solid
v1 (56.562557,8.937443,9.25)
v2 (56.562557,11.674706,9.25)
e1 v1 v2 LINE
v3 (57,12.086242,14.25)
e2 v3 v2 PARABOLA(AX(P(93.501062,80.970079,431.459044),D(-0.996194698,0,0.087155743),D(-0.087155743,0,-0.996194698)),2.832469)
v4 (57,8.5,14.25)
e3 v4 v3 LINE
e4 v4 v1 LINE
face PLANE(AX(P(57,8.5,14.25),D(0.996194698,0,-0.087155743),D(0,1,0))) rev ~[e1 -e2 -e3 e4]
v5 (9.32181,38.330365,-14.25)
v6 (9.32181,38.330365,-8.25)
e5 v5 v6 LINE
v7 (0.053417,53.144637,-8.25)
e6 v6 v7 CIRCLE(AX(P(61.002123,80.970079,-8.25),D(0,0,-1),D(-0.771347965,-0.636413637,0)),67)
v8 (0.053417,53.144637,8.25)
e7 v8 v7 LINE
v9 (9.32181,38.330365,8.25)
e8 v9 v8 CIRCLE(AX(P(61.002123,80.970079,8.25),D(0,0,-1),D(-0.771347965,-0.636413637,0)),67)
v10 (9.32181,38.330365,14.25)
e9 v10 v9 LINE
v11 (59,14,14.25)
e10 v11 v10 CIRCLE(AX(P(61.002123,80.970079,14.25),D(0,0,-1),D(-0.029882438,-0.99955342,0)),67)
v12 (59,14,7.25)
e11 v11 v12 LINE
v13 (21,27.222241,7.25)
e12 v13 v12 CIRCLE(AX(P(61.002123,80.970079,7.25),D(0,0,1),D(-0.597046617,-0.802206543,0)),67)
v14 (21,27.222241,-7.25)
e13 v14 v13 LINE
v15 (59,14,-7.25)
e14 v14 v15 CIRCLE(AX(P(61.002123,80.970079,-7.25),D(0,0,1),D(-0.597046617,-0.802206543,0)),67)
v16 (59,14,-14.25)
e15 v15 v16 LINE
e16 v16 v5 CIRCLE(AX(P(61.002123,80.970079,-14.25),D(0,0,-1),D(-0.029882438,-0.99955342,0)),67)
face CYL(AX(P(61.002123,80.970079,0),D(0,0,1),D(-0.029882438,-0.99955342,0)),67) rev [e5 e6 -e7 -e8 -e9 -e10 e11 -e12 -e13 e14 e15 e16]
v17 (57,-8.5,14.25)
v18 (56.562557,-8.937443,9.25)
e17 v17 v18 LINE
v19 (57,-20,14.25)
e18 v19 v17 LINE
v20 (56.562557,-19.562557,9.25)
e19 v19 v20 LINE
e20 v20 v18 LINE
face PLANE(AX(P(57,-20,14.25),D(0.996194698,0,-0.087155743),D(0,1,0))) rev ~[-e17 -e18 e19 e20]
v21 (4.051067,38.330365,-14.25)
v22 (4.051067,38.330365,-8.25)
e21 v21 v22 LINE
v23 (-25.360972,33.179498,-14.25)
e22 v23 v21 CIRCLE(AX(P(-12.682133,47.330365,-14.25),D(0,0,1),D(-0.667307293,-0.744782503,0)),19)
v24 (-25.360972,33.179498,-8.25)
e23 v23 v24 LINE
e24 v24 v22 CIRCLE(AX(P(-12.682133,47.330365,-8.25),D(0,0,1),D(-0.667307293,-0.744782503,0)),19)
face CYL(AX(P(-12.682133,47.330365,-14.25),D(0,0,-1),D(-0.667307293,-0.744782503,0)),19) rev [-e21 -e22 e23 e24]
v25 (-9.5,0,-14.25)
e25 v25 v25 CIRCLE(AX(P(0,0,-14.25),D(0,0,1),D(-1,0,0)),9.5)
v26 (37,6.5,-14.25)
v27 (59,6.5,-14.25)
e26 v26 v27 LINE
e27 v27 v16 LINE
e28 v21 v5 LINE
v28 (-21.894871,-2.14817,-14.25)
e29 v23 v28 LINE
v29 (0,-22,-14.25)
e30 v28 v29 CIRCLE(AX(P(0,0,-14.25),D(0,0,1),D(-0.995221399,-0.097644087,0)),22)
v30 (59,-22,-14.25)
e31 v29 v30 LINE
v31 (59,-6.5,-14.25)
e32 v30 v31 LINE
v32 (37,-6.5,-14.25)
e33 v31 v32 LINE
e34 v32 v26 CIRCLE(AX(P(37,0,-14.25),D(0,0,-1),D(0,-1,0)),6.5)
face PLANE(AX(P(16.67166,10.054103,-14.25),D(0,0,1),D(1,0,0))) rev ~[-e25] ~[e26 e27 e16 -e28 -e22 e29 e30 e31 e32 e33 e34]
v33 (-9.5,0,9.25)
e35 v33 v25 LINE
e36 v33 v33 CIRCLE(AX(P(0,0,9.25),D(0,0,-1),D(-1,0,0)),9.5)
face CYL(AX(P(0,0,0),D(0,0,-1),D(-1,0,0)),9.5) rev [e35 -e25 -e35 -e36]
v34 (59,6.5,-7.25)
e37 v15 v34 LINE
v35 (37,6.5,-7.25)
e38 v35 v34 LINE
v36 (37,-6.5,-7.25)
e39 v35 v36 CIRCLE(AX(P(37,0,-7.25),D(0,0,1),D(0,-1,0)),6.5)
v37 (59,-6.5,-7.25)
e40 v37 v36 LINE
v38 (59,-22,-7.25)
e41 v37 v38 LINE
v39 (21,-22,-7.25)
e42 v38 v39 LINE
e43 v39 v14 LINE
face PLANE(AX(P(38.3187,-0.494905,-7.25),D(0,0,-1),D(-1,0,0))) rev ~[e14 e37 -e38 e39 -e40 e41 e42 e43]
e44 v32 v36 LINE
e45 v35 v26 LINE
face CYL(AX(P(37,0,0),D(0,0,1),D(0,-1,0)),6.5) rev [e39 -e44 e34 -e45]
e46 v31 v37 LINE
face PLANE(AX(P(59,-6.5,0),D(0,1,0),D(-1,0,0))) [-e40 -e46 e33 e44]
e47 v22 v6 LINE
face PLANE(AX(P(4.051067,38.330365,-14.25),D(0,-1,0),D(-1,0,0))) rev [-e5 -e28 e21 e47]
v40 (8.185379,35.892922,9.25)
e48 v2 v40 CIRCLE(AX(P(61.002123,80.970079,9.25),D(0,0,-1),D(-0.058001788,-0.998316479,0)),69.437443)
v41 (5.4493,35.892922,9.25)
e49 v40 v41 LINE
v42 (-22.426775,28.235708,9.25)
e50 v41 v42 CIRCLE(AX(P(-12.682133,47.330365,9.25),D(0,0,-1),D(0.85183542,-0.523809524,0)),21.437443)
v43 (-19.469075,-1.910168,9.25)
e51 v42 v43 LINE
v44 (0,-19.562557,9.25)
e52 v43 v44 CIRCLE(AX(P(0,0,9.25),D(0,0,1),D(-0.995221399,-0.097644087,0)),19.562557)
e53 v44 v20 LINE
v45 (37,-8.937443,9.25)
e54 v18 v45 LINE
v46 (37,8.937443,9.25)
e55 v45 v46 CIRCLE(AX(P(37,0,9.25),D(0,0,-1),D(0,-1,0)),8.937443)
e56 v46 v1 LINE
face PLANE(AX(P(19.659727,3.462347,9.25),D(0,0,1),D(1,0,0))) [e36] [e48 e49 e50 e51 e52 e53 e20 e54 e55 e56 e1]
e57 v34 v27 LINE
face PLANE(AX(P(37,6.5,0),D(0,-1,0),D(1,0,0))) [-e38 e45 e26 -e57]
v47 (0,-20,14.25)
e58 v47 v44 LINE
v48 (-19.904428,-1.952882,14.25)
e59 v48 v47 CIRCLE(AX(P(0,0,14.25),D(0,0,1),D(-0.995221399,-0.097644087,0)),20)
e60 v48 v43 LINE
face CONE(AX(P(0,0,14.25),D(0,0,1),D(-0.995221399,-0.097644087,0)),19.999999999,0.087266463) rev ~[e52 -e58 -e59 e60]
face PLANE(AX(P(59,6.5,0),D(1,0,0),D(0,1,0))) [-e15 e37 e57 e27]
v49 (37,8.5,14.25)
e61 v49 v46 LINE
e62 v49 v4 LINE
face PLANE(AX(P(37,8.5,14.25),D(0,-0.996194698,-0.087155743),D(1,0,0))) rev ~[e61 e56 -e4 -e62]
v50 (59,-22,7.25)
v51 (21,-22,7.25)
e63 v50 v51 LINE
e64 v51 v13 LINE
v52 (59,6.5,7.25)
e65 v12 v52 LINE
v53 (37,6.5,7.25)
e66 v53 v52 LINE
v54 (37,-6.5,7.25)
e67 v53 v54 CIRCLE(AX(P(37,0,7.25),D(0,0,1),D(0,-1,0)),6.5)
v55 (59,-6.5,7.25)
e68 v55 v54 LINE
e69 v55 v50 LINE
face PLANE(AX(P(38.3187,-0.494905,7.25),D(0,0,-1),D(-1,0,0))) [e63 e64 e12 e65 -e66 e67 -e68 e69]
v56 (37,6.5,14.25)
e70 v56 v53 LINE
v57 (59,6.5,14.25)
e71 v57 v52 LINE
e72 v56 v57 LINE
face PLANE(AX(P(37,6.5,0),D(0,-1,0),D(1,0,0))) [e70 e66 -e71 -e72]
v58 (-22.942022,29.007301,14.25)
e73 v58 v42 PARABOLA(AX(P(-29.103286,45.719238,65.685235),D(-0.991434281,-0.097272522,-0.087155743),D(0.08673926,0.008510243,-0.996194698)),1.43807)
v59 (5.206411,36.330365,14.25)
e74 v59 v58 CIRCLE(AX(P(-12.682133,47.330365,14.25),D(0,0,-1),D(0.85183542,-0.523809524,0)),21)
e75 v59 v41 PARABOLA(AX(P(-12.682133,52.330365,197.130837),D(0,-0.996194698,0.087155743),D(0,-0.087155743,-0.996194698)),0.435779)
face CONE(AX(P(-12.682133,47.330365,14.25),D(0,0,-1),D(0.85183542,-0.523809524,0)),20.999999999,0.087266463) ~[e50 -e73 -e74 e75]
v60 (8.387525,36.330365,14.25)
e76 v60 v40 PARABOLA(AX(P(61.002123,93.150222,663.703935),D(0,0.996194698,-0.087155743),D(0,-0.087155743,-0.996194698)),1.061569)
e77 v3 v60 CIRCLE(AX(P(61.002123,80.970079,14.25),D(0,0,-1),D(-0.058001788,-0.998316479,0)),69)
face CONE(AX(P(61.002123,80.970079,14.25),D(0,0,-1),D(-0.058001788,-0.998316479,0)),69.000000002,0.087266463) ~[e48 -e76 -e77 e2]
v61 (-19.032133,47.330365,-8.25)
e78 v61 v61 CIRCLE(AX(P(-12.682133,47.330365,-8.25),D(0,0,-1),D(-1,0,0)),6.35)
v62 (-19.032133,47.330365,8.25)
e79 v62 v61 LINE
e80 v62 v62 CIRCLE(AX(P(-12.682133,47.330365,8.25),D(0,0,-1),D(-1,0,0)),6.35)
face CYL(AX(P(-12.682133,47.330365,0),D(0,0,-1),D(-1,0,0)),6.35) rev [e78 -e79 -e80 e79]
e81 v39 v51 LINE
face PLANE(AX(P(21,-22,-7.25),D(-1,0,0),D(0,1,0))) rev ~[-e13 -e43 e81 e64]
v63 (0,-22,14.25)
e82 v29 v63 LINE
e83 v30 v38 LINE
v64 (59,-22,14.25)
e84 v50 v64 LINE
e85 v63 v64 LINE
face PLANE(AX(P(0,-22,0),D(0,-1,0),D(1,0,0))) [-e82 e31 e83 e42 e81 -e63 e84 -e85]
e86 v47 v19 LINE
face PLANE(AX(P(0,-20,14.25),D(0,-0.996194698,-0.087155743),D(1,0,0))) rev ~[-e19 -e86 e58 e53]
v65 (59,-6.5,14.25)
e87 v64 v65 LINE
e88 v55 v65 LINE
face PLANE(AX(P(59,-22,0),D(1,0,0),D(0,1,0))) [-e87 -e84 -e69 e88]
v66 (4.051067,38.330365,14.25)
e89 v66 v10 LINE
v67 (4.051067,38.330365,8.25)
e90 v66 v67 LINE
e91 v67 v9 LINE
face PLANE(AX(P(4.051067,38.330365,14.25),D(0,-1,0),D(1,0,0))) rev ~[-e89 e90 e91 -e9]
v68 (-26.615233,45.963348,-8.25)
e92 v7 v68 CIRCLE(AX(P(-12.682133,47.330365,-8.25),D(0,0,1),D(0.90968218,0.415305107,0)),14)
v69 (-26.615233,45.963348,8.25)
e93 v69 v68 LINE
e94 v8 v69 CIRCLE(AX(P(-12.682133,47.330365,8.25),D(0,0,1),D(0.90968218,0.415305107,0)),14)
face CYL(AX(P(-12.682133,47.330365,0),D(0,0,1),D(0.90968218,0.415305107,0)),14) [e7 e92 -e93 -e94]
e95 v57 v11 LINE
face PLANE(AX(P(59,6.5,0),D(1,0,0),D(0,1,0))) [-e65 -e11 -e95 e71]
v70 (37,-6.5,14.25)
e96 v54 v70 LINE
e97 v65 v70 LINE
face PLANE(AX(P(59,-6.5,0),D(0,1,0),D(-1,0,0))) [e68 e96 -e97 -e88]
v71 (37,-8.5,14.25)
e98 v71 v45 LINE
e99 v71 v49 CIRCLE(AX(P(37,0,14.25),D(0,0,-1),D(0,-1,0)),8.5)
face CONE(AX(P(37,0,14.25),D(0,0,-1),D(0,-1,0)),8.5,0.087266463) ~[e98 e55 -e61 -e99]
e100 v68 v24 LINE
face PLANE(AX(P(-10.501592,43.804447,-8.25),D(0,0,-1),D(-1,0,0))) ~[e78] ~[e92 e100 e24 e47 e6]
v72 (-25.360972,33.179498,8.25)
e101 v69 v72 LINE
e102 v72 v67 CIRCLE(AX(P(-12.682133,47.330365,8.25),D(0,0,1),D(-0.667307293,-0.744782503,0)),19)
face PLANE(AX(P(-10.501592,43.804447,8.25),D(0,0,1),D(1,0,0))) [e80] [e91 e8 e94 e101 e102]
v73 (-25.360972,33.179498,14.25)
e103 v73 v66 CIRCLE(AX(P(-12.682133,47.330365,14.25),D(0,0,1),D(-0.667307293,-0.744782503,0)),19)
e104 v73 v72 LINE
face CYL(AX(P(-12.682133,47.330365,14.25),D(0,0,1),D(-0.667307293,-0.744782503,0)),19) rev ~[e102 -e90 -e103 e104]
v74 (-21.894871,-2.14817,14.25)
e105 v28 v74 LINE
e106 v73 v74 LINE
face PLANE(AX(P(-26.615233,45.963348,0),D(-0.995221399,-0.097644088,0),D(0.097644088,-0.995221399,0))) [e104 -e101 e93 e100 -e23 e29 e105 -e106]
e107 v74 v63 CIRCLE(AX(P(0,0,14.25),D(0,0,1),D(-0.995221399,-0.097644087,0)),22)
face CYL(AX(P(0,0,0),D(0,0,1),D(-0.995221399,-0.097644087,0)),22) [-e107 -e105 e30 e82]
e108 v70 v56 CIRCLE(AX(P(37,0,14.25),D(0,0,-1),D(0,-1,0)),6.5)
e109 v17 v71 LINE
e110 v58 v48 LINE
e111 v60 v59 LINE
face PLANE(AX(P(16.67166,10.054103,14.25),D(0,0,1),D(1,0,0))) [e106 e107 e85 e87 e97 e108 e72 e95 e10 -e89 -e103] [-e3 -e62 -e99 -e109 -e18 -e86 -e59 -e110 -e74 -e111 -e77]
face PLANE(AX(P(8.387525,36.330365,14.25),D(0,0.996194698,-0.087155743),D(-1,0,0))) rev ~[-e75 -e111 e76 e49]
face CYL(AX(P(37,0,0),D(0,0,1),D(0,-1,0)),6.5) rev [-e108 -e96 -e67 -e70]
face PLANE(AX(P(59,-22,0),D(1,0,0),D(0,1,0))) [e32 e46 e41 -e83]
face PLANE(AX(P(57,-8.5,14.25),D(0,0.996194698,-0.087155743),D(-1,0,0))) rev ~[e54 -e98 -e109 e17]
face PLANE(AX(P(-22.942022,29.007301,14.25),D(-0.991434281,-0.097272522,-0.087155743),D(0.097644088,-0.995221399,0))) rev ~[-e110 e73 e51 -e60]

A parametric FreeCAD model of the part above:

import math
import FreeCAD as App
import Part
import Sketcher


def faces_at(feature, points):
    """Names of the faces that lie closest to the given points."""
    faces = feature.Shape.Faces
    near = lambda p: min(range(len(faces)), key=lambda i: faces[i].distToShape(Part.Vertex(*p))[0])
    return sorted({f"Face{near(p) + 1}" for p in points})

doc = App.newDocument("Part")
body = doc.addObject("PartDesign::Body", "Body")

sketch1 = body.newObject("Sketcher::SketchObject", "Sketch")
sketch1.AttachmentSupport = (doc.getObject("XY_Plane"), [""])
sketch1.MapMode = "FlatFace"
sketch1.addGeometry([
    Part.LineSegment(App.Vector(-26.615233, 45.963348, 0), App.Vector(-21.894871, -2.14817, 0)),
    Part.ArcOfCircle(Part.Circle(App.Vector(0, 0, 0), App.Vector(0, 0, 1), 22), math.radians(-174.396477), math.radians(-90)),
    Part.LineSegment(App.Vector(0, -22, 0), App.Vector(59, -22, 0)),
    Part.LineSegment(App.Vector(59, -22, 0), App.Vector(59, -6.5, 0)),
    Part.LineSegment(App.Vector(59, -6.5, 0), App.Vector(37, -6.5, 0)),
    Part.ArcOfCircle(Part.Circle(App.Vector(37, 0, 0), App.Vector(0, 0, 1), 6.5), math.radians(90), math.radians(270)),
    Part.LineSegment(App.Vector(37, 6.5, 0), App.Vector(59, 6.5, 0)),
    Part.LineSegment(App.Vector(59, 6.5, 0), App.Vector(59, 14, 0)),
    Part.ArcOfCircle(Part.Circle(App.Vector(61.002123, 80.970079, 0), App.Vector(0, 0, 1), 67), math.radians(-155.461468), math.radians(-91.712392)),
    Part.ArcOfCircle(Part.Circle(App.Vector(-12.682133, 47.330365, 0), App.Vector(0, 0, 1), 14), math.radians(24.538532), math.radians(185.603523)),
    Part.Circle(App.Vector(0, 0, 0), App.Vector(0, 0, 1), 9.5),
    Part.Circle(App.Vector(-12.682133, 47.330365, 0), App.Vector(0, 0, 1), 6.35),
], False)
sketch1.addConstraint([
    Sketcher.Constraint("Coincident", 0, 2, 1, 1),
    Sketcher.Constraint("Coincident", 1, 2, 2, 1),
    Sketcher.Constraint("Coincident", 2, 2, 3, 1),
    Sketcher.Constraint("Coincident", 3, 2, 4, 1),
    Sketcher.Constraint("Coincident", 4, 2, 5, 2),
    Sketcher.Constraint("Coincident", 5, 1, 6, 1),
    Sketcher.Constraint("Coincident", 6, 2, 7, 1),
    Sketcher.Constraint("Coincident", 7, 2, 8, 2),
    Sketcher.Constraint("Coincident", 8, 1, 9, 1),
    Sketcher.Constraint("Coincident", 9, 2, 0, 1),
    Sketcher.Constraint("Horizontal", 2),
    Sketcher.Constraint("Vertical", 3),
    Sketcher.Constraint("Horizontal", 4),
    Sketcher.Constraint("Horizontal", 6),
    Sketcher.Constraint("Vertical", 7),
    Sketcher.Constraint("Coincident", 1, 3, -1, 1),
    Sketcher.Constraint("Coincident", 10, 3, -1, 1),
    Sketcher.Constraint("Coincident", 11, 3, 9, 3),
    Sketcher.Constraint("PointOnObject", 5, 3, -1),
    Sketcher.Constraint("PointOnObject", 1, 2, -2),
    Sketcher.Constraint("Diameter", 10, 19.0),
    Sketcher.Constraint("Radius", 1, 22.0),
    Sketcher.Constraint("Radius", 8, 67.0),
    Sketcher.Constraint("Radius", 9, 14.0),
    Sketcher.Constraint("Diameter", 11, 12.7),
    Sketcher.Constraint("Radius", 5, 6.5),
    Sketcher.Constraint("DistanceX", 2, 1, 2, 2, 59.0),
    Sketcher.Constraint("DistanceX", 4, 2, 4, 1, 22.0),
    Sketcher.Constraint("DistanceX", 6, 1, 6, 2, 22.0),
    Sketcher.Constraint("DistanceY", 7, 1, 7, 2, 7.5),
    Sketcher.Constraint("DistanceX", -1, 1, 5, 3, 37.0),
    Sketcher.Constraint("DistanceX", -1, 1, 5, 1, 37.0),
    Sketcher.Constraint("DistanceX", 9, 2, 11, 3, 13.9331),
    Sketcher.Constraint("DistanceY", -1, 1, 8, 3, 80.970079),
    Sketcher.Constraint("DistanceX", 0, 2, -1, 1, 21.894871),
    Sketcher.Constraint("DistanceY", -1, 1, 9, 2, 45.963348),
    Sketcher.Constraint("DistanceX", 9, 3, 8, 1, 12.735551),
])
pad1 = body.newObject("PartDesign::Pad", "Pad")
pad1.Profile = sketch1
pad1.Length = 28.5
pad1.Midplane = True

sketch2 = body.newObject("Sketcher::SketchObject", "Sketch001")
sketch2.AttachmentSupport = (doc.getObject("XY_Plane"), [""])
sketch2.MapMode = "FlatFace"
sketch2.AttachmentOffset = App.Placement(App.Vector(0, 0, 14.25), App.Rotation())
sketch2.addGeometry([
    Part.LineSegment(App.Vector(4.051067, 38.330365, 0), App.Vector(9.32181, 38.330365, 0)),
    Part.ArcOfCircle(Part.Circle(App.Vector(61.002123, 80.970079, 0), App.Vector(0, 0, 1), 67), math.radians(-155.461468), math.radians(-140.47509)),
    Part.ArcOfCircle(Part.Circle(App.Vector(-12.682133, 47.330365, 0), App.Vector(0, 0, 1), 14), math.radians(24.538532), math.radians(185.603523)),
    Part.LineSegment(App.Vector(-26.615233, 45.963348, 0), App.Vector(-25.360972, 33.179498, 0)),
    Part.ArcOfCircle(Part.Circle(App.Vector(-12.682133, 47.330365, 0), App.Vector(0, 0, 1), 19), math.radians(-131.859579), math.radians(-28.273714)),
], False)
sketch2.addConstraint([
    Sketcher.Constraint("Coincident", 0, 2, 1, 2),
    Sketcher.Constraint("Tangent", 1, 1, 2, 1),
    Sketcher.Constraint("Tangent", 2, 2, 3, 1),
    Sketcher.Constraint("Coincident", 3, 2, 4, 1),
    Sketcher.Constraint("Coincident", 4, 2, 0, 1),
    Sketcher.Constraint("Horizontal", 0),
    Sketcher.Constraint("Coincident", 4, 3, 2, 3),
    Sketcher.Constraint("Radius", 1, 67.0),
    Sketcher.Constraint("Radius", 2, 14.0),
    Sketcher.Constraint("Radius", 4, 19.0),
    Sketcher.Constraint("DistanceY", 0, 2, 2, 3, 9.0),
    Sketcher.Constraint("DistanceX", 2, 2, 2, 3, 13.9331),
    Sketcher.Constraint("DistanceX", 0, 1, 0, 2, 5.270742),
    Sketcher.Constraint("DistanceY", -1, 1, 1, 3, 80.970079),
    Sketcher.Constraint("DistanceX", -1, 1, 0, 2, 9.32181),
])
pocket1 = body.newObject("PartDesign::Pocket", "Pocket")
pocket1.Profile = sketch2
pocket1.Length = 6
doc.recompute()

mirrored = body.newObject("PartDesign::Mirrored", "Mirrored")
mirrored.Originals = [pocket1]
mirrored.MirrorPlane = (doc.getObject("XY_Plane"), [""])
body.Tip = mirrored

sketch3 = body.newObject("Sketcher::SketchObject", "Sketch002")
sketch3.AttachmentSupport = (doc.getObject("XY_Plane"), [""])
sketch3.MapMode = "FlatFace"
sketch3.addGeometry([
    Part.LineSegment(App.Vector(21, 27.222241, 0), App.Vector(21, -22, 0)),
    Part.LineSegment(App.Vector(21, -22, 0), App.Vector(59, -22, 0)),
    Part.LineSegment(App.Vector(59, -22, 0), App.Vector(59, 14, 0)),
    Part.ArcOfCircle(Part.Circle(App.Vector(61.002123, 80.970079, 0), App.Vector(0, 0, 1), 67), math.radians(-126.658669), math.radians(-91.712392)),
], False)
sketch3.addConstraint([
    Sketcher.Constraint("Coincident", 0, 2, 1, 1),
    Sketcher.Constraint("Coincident", 1, 2, 2, 1),
    Sketcher.Constraint("Coincident", 2, 2, 3, 2),
    Sketcher.Constraint("Coincident", 3, 1, 0, 1),
    Sketcher.Constraint("Vertical", 0),
    Sketcher.Constraint("Horizontal", 1),
    Sketcher.Constraint("Vertical", 2),
    Sketcher.Constraint("Radius", 3, 67.0),
    Sketcher.Constraint("DistanceX", 1, 1, 1, 2, 38.0),
    Sketcher.Constraint("DistanceY", 2, 1, 2, 2, 36.0),
    Sketcher.Constraint("DistanceX", -1, 1, 0, 2, 21.0),
    Sketcher.Constraint("DistanceY", 0, 2, -1, 1, 22.0),
    Sketcher.Constraint("DistanceY", 0, 2, 0, 1, 49.222241),
])
pocket2 = body.newObject("PartDesign::Pocket", "Pocket001")
pocket2.Profile = sketch3
pocket2.Type = "TwoLengths"
pocket2.Length = 7.25
pocket2.Length2 = 7.25
pocket2.Reversed = True
body2 = doc.addObject("PartDesign::Body", "Body001")

sketch4 = body2.newObject("Sketcher::SketchObject", "Sketch003")
sketch4.AttachmentSupport = (doc.getObject("XY_Plane001"), [""])
sketch4.MapMode = "FlatFace"
sketch4.AttachmentOffset = App.Placement(App.Vector(0, 0, 14.25), App.Rotation())
sketch4.addGeometry([
    Part.LineSegment(App.Vector(8.387525, 36.330365, 0), App.Vector(5.206411, 36.330365, 0)),
    Part.ArcOfCircle(Part.Circle(App.Vector(-12.682133, 47.330365, 0), App.Vector(0, 0, 1), 21), math.radians(-119.246382), math.radians(-31.588136)),
    Part.LineSegment(App.Vector(-22.942022, 29.007301, 0), App.Vector(-19.904428, -1.952882, 0)),
    Part.ArcOfCircle(Part.Circle(App.Vector(0, 0, 0), App.Vector(0, 0, 1), 20), math.radians(-174.396477), math.radians(-90)),
    Part.LineSegment(App.Vector(0, -20, 0), App.Vector(57, -20, 0)),
    Part.LineSegment(App.Vector(57, -20, 0), App.Vector(57, -8.5, 0)),
    Part.LineSegment(App.Vector(57, -8.5, 0), App.Vector(37, -8.5, 0)),
    Part.ArcOfCircle(Part.Circle(App.Vector(37, 0, 0), App.Vector(0, 0, 1), 8.5), math.radians(90), math.radians(270)),
    Part.LineSegment(App.Vector(37, 8.5, 0), App.Vector(57, 8.5, 0)),
    Part.LineSegment(App.Vector(57, 8.5, 0), App.Vector(57, 12.086242, 0)),
    Part.ArcOfCircle(Part.Circle(App.Vector(61.002123, 80.970079, 0), App.Vector(0, 0, 1), 69), math.radians(-139.687784), math.radians(-93.325124)),
], False)
sketch4.addConstraint([
    Sketcher.Constraint("Coincident", 0, 2, 1, 2),
    Sketcher.Constraint("Coincident", 1, 1, 2, 1),
    Sketcher.Constraint("Tangent", 2, 2, 3, 1),
    Sketcher.Constraint("Tangent", 3, 2, 4, 1),
    Sketcher.Constraint("Coincident", 4, 2, 5, 1),
    Sketcher.Constraint("Coincident", 5, 2, 6, 1),
    Sketcher.Constraint("Tangent", 6, 2, 7, 2),
    Sketcher.Constraint("Tangent", 7, 1, 8, 1),
    Sketcher.Constraint("Coincident", 8, 2, 9, 1),
    Sketcher.Constraint("Coincident", 9, 2, 10, 2),
    Sketcher.Constraint("Coincident", 10, 1, 0, 1),
    Sketcher.Constraint("Horizontal", 0),
    Sketcher.Constraint("Horizontal", 4),
    Sketcher.Constraint("Vertical", 5),
    Sketcher.Constraint("Horizontal", 6),
    Sketcher.Constraint("Horizontal", 8),
    Sketcher.Constraint("Vertical", 9),
    Sketcher.Constraint("Coincident", 3, 3, -1, 1),
    Sketcher.Constraint("Symmetric", 5, 2, 8, 2, -1),
    Sketcher.Constraint("Radius", 1, 21.0),
    Sketcher.Constraint("Radius", 3, 20.0),
    Sketcher.Constraint("Radius", 10, 69.0),
    Sketcher.Constraint("Radius", 7, 8.5),
    Sketcher.Constraint("DistanceX", 4, 1, 4, 2, 57.0),
    Sketcher.Constraint("DistanceX", 6, 2, 6, 1, 20.0),
    Sketcher.Constraint("DistanceY", 0, 2, 1, 3, 11.0),
    Sketcher.Constraint("DistanceY", -1, 1, 1, 1, 29.007301),
    Sketcher.Constraint("Distance", 2, 31.10884),
    Sketcher.Constraint("DistanceX", 0, 2, 0, 1, 3.181114),
    Sketcher.Constraint("DistanceY", 9, 1, 9, 2, 3.586242),
    Sketcher.Constraint("DistanceY", -1, 1, 10, 3, 80.970079),
])
pad2 = body2.newObject("PartDesign::Pad", "Pad001")
pad2.Profile = sketch4
pad2.Length = 5
pad2.Reversed = True
doc.recompute()

datumplane = body2.newObject("PartDesign::Plane", "DatumPlane")
datumplane.AttachmentSupport = (doc.getObject("XY_Plane001"), [""])
datumplane.MapMode = "FlatFace"
datumplane.AttachmentOffset = App.Placement(App.Vector(0, 0, 14.25), App.Rotation())
draft = body2.newObject("PartDesign::Draft", "Draft")
draft.Base = (pad2, faces_at(pad2, [
    (6.797, 36.33, 11.75),
    (-7.395, 27.007, 11.75),
    (-21.423, 13.527, 11.75),
    (-13.434, -14.817, 11.75),
    (28.5, -20, 11.75),
    (57, -14.25, 11.75),
    (47, -8.5, 11.75),
    (28.5, 0, 11.75),
    (47, 8.5, 11.75),
    (57, 10.293, 11.75),
    (30.208, 19.223, 11.75),
]))
draft.NeutralPlane = (datumplane, [""])
draft.Angle = 5
draft.Reversed = True
doc.recompute()

boolean = body.newObject("PartDesign::Boolean", "Boolean")
boolean.Type = "Cut"
boolean.addObjects([body2])

doc.recompute()
